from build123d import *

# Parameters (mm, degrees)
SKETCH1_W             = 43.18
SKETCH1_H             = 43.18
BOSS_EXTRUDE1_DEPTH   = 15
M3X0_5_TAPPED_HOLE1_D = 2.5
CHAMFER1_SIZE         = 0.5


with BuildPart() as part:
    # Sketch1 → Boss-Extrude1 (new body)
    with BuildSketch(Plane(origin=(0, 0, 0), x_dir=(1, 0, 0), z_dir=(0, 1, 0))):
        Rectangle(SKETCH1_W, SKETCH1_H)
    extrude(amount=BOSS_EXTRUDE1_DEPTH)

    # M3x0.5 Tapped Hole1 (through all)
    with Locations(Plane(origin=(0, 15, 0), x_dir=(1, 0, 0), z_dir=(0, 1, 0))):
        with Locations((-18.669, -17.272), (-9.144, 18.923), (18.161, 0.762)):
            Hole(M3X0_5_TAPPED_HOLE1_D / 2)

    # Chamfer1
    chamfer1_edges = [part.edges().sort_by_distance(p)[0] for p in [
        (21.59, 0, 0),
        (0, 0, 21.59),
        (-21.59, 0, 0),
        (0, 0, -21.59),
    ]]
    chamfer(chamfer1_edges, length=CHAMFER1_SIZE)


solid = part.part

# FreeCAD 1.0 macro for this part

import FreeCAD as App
import Part
import Sketcher


def edges_at(feature, points):
    """Names of the edges that pass closest to the given points."""
    edges = feature.Shape.Edges
    near = lambda p: min(range(len(edges)), key=lambda i: edges[i].distToShape(Part.Vertex(*p))[0])
    return sorted({f"Edge{near(p) + 1}" for p in points})

doc = App.newDocument("Part")
params = doc.addObject("Spreadsheet::Sheet", "Params")
for row, (alias, value) in enumerate([
    ("sketch1_width", "43.18 mm"),
    ("pad1_length", "15 mm"),
    ("sketch2_diameter", "2.5 mm"),
    ("hole_diameter", "2.5 mm"),
    ("chamfer_size", "0.5 mm"),
], start=1):
    params.set(f"A{row}", alias)
    params.set(f"B{row}", "=" + value)
    params.setAlias(f"B{row}", alias)

body = doc.addObject("PartDesign::Body", "Body")

# Sketch on XZ plane
sketch1 = doc.addObject("Sketcher::SketchObject", "Sketch")
body.addObject(sketch1)
sketch1.AttachmentSupport = (doc.XZ_Plane, [""])
sketch1.MapMode = "FlatFace"
sketch1.addGeometry(Part.LineSegment(App.Vector(-21.59, -21.59, 0), App.Vector(-21.59, 21.59, 0)), False)
sketch1.addGeometry(Part.LineSegment(App.Vector(-21.59, 21.59, 0), App.Vector(21.59, 21.59, 0)), False)
sketch1.addGeometry(Part.LineSegment(App.Vector(21.59, 21.59, 0), App.Vector(21.59, -21.59, 0)), False)
sketch1.addGeometry(Part.LineSegment(App.Vector(21.59, -21.59, 0), App.Vector(-21.59, -21.59, 0)), False)
sketch1.addConstraint(Sketcher.Constraint("Coincident", 0, 2, 1, 1))
sketch1.addConstraint(Sketcher.Constraint("Coincident", 1, 2, 2, 1))
sketch1.addConstraint(Sketcher.Constraint("Coincident", 2, 2, 3, 1))
sketch1.addConstraint(Sketcher.Constraint("Coincident", 3, 2, 0, 1))
sketch1.addConstraint(Sketcher.Constraint("Vertical", 0))
sketch1.addConstraint(Sketcher.Constraint("Horizontal", 1))
sketch1.addConstraint(Sketcher.Constraint("Vertical", 2))
sketch1.addConstraint(Sketcher.Constraint("Horizontal", 3))
sketch1.addConstraint(Sketcher.Constraint("Symmetric", 0, 2, 2, 2, -1, 1))
sketch1.addConstraint(Sketcher.Constraint("Equal", 3, 0))
sketch1.addConstraint(Sketcher.Constraint("DistanceX", 1, 1, 1, 2, 43.18))
sketch1.setExpression("Constraints[10]", "Params.sketch1_width")
pad1 = doc.addObject("PartDesign::Pad", "Pad")
body.addObject(pad1)
pad1.Profile = sketch1
pad1.setExpression("Length", "Params.pad1_length")
pad1.Reversed = True

# Sketch on XZ plane
sketch2 = doc.addObject("Sketcher::SketchObject", "Sketch001")
body.addObject(sketch2)
sketch2.AttachmentSupport = (doc.XZ_Plane, [""])
sketch2.MapMode = "FlatFace"
sketch2.AttachmentOffset = App.Placement(App.Vector(0, 0, -15), App.Rotation())
sketch2.addGeometry(Part.Circle(App.Vector(-18.669, 17.272, 0), App.Vector(0, 0, 1), 1.25), False)
sketch2.addGeometry(Part.Circle(App.Vector(-9.144, -18.923, 0), App.Vector(0, 0, 1), 1.25), False)
sketch2.addGeometry(Part.Circle(App.Vector(18.161, -0.762, 0), App.Vector(0, 0, 1), 1.25), False)
sketch2.addConstraint(Sketcher.Constraint("Equal", 0, 1))
sketch2.addConstraint(Sketcher.Constraint("Equal", 1, 2))
sketch2.addConstraint(Sketcher.Constraint("Diameter", 0, 2.5))
sketch2.addConstraint(Sketcher.Constraint("DistanceX", 0, 3, 2, 3, 36.83))
sketch2.addConstraint(Sketcher.Constraint("DistanceX", 0, 3, -1, 1, 18.669))
sketch2.addConstraint(Sketcher.Constraint("DistanceY", -1, 1, 0, 3, 17.272))
sketch2.addConstraint(Sketcher.Constraint("DistanceX", 1, 3, -1, 1, 9.144))
sketch2.addConstraint(Sketcher.Constraint("DistanceY", 1, 3, -1, 1, 18.923))
sketch2.addConstraint(Sketcher.Constraint("DistanceY", 2, 3, -1, 1, 0.762))
sketch2.setExpression("Constraints[2]", "Params.sketch2_diameter")
doc.recompute()
hole = doc.addObject("PartDesign::Hole", "Hole")
body.addObject(hole)
hole.Profile = sketch2
hole.ThreadType = "None"
hole.setExpression("Diameter", "Params.hole_diameter")
hole.DepthType = "ThroughAll"
hole.Reversed = True
doc.recompute()

chamfer = doc.addObject("PartDesign::Chamfer", "Chamfer")
body.addObject(chamfer)
chamfer.Base = (hole, edges_at(hole, [
    (21.59, 0, 0),
    (0, 0, 21.59),
    (-21.59, 0, 0),
    (0, 0, -21.59),
]))
chamfer.setExpression("Size", "Params.chamfer_size")

doc.recompute()
